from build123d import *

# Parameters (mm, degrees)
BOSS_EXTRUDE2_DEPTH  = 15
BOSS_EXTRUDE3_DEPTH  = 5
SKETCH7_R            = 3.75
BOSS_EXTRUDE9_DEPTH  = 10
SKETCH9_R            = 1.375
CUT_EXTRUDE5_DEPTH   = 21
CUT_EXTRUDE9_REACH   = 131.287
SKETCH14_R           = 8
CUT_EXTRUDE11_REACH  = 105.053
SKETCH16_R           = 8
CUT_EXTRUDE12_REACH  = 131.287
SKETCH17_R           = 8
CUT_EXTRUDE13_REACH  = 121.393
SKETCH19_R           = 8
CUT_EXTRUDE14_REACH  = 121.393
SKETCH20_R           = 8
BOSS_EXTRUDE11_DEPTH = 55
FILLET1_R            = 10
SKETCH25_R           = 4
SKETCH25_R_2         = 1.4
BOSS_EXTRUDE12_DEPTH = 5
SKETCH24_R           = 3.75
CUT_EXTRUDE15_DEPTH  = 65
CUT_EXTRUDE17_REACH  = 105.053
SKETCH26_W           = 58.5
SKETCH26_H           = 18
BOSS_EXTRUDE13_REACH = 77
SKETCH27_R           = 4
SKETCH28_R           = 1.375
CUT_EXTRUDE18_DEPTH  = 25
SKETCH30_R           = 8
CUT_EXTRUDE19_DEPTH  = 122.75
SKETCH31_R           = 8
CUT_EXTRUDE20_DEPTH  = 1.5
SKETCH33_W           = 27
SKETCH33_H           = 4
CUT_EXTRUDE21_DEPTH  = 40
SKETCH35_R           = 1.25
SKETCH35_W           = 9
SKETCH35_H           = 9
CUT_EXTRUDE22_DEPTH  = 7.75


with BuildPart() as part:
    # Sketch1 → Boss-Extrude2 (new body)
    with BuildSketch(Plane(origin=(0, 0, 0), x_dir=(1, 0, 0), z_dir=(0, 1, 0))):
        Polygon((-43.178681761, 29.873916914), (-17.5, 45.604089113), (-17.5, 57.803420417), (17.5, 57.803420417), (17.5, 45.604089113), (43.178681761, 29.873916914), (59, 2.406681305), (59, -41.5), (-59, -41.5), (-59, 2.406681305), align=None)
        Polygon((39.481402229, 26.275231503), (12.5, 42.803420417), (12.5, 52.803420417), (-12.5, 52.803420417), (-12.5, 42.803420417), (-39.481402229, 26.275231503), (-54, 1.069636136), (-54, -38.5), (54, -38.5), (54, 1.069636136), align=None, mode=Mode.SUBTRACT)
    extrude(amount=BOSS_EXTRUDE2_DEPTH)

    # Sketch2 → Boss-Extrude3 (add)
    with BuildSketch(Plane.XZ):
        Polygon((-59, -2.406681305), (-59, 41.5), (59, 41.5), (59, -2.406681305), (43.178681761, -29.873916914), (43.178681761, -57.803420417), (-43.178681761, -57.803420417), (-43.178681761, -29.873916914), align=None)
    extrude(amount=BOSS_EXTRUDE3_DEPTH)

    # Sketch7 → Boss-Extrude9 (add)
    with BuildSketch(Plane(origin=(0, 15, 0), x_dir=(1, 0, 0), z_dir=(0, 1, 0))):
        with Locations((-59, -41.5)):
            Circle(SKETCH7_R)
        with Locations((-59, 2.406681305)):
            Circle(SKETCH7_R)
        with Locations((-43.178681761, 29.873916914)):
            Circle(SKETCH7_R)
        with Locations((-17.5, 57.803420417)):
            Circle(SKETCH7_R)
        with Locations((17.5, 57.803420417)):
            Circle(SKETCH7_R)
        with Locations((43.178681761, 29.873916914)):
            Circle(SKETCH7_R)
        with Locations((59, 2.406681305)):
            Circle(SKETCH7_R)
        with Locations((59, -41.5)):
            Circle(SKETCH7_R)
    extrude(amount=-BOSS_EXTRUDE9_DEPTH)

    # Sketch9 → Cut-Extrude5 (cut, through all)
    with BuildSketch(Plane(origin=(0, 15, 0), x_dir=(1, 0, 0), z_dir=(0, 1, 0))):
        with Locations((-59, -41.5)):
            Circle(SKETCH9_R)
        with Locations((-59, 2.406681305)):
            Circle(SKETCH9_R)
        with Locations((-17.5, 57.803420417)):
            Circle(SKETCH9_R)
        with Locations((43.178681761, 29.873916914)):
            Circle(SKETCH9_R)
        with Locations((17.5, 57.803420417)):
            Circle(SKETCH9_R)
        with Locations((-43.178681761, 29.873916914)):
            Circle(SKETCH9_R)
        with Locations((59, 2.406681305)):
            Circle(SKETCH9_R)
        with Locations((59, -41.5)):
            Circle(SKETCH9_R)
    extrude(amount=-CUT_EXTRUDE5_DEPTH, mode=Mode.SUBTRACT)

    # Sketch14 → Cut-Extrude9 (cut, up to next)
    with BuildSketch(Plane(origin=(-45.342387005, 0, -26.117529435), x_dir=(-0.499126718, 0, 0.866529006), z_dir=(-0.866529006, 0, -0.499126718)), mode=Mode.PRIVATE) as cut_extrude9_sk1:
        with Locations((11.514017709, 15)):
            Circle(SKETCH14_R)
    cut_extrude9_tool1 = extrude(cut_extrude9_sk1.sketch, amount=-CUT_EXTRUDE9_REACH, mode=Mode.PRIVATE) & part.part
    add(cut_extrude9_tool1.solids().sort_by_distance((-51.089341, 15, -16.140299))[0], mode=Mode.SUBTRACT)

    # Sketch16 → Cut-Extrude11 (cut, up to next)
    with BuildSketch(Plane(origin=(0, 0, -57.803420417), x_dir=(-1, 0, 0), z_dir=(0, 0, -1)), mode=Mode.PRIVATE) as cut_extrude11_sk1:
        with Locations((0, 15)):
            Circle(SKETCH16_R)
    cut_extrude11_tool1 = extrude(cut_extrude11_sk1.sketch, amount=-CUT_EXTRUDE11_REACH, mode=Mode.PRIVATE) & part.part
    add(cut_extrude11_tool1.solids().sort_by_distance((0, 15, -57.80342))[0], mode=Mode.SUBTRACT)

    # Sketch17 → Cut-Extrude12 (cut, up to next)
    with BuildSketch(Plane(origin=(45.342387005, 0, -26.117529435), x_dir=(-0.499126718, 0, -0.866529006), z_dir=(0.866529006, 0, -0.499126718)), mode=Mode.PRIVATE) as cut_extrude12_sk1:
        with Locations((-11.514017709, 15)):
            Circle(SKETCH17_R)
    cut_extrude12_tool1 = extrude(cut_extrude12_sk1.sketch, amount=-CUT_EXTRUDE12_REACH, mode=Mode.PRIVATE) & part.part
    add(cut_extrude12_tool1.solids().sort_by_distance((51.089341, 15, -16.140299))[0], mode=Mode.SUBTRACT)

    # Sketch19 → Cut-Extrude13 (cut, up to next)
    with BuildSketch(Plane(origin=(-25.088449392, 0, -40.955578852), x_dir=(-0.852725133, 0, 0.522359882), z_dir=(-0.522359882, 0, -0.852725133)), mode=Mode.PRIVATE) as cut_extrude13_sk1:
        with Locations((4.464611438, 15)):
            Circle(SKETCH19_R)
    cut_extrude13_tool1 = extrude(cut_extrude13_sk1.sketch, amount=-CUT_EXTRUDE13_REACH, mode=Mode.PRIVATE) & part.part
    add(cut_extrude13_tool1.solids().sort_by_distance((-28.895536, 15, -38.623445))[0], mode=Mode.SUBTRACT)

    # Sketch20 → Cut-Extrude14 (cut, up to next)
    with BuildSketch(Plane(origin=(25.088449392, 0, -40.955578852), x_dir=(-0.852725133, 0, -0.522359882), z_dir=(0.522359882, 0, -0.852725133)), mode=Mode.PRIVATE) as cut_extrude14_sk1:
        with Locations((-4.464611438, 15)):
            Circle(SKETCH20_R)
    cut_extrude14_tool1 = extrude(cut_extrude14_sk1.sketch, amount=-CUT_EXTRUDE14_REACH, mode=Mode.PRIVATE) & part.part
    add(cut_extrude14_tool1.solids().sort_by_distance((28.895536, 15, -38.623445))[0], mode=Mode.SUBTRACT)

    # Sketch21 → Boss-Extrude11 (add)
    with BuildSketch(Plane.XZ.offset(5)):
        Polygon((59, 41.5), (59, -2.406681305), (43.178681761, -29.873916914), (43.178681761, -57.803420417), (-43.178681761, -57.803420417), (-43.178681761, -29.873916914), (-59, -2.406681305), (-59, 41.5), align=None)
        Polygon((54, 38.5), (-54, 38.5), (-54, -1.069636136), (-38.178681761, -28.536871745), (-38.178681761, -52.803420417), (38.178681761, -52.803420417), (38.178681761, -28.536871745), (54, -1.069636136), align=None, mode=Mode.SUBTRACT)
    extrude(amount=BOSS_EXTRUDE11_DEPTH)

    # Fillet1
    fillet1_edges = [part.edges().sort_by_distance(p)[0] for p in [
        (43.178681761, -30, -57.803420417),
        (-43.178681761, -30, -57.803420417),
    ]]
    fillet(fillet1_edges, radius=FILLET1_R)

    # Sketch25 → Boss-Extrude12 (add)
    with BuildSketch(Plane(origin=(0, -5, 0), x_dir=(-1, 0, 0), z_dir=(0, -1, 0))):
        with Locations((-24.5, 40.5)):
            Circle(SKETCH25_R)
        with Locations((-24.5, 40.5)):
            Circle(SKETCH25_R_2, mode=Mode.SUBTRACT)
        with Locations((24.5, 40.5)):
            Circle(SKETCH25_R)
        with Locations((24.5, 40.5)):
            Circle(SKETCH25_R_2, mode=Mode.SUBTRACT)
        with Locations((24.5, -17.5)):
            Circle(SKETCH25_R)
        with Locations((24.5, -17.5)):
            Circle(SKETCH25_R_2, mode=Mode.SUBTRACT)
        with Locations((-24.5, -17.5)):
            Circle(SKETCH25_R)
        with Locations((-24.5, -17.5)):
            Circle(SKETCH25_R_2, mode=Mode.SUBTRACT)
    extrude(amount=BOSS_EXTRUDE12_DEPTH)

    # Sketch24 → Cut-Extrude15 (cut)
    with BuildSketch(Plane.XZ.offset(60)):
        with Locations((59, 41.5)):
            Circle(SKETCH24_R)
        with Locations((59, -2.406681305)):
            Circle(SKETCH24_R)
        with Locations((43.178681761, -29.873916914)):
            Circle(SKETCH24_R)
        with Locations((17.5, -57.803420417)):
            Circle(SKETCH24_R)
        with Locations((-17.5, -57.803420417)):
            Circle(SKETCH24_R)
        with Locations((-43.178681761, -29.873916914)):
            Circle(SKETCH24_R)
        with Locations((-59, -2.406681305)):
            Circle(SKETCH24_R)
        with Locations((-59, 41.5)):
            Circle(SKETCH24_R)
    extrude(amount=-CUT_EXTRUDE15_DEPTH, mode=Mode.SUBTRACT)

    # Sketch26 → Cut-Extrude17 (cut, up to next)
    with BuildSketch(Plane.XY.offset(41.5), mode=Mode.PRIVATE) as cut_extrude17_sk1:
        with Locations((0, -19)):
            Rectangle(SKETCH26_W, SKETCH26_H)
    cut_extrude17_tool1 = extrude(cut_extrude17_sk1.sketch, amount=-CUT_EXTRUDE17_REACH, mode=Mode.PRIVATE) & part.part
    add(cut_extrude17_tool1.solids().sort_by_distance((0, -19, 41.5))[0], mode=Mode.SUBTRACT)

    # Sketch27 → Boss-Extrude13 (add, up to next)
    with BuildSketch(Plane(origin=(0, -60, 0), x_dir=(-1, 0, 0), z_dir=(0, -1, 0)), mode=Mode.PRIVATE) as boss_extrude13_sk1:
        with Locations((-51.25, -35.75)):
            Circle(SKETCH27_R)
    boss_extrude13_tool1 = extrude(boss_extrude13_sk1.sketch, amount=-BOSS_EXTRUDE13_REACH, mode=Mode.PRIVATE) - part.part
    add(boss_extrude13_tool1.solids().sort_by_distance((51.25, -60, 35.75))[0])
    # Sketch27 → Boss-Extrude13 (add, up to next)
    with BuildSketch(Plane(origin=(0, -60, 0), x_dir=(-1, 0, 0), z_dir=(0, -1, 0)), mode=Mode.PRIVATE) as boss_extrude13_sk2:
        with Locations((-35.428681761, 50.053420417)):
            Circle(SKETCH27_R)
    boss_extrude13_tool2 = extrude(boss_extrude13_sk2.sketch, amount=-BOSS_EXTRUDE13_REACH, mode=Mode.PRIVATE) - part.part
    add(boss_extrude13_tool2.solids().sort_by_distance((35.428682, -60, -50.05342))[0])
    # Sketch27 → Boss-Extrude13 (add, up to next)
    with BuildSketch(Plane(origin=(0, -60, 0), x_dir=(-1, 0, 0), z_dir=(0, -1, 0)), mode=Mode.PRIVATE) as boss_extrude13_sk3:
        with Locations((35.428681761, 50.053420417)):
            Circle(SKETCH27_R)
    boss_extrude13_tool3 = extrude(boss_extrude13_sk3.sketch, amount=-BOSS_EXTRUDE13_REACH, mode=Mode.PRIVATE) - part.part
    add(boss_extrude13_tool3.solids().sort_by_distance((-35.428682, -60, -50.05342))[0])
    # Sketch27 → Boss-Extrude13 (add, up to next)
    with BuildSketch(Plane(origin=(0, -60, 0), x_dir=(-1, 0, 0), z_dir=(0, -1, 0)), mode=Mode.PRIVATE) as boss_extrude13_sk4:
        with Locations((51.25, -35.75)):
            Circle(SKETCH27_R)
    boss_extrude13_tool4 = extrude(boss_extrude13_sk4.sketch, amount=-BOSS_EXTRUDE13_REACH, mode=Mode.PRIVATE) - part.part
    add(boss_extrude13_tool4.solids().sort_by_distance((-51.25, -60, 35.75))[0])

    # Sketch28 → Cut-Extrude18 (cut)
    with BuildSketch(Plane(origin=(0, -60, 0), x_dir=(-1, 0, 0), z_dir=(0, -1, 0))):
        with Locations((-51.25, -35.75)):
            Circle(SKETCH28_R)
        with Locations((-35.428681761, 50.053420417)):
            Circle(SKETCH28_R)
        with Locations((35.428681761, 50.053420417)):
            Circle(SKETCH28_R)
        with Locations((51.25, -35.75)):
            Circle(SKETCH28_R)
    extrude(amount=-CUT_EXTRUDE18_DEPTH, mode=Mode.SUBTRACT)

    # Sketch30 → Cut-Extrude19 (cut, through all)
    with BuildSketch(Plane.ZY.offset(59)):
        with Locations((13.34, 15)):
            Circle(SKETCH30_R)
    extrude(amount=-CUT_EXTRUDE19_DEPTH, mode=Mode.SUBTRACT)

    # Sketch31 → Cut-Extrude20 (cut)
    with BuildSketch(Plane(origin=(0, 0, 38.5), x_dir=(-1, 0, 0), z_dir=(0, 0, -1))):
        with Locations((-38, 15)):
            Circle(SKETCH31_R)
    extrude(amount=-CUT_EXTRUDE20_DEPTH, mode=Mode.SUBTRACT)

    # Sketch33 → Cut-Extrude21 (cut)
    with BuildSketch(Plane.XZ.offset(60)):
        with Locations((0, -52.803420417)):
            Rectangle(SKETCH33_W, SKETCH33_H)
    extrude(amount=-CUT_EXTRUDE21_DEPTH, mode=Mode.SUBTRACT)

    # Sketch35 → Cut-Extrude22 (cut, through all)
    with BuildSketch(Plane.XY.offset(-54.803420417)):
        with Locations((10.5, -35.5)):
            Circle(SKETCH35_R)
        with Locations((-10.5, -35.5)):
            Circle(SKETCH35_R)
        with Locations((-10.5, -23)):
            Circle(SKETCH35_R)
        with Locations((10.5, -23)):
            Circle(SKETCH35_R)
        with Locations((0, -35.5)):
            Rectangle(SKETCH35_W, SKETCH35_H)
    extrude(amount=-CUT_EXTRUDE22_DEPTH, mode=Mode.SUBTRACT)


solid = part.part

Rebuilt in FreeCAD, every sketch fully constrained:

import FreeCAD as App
import Part
import Sketcher

V = App.Vector


def edges_at(feature, points):
    """Names of the edges that pass closest to the given points."""
    edges = feature.Shape.Edges
    near = lambda p: min(range(len(edges)), key=lambda i: edges[i].distToShape(Part.Vertex(*p))[0])
    return sorted({f"Edge{near(p) + 1}" for p in points})


def add_polygon(sketch, points):
    """Adds a closed chain of lines whose ends are joined by coincident constraints."""
    first, n = sketch.GeometryCount, len(points)
    for a, b in zip(points, points[1:] + points[:1]):
        sketch.addGeometry(Part.LineSegment(App.Vector(*a, 0), App.Vector(*b, 0)), False)
    for i in range(n):
        sketch.addConstraint(Sketcher.Constraint("Coincident", first + i, 2, first + (i + 1) % n, 1))

doc = App.newDocument("Part")
body = doc.addObject("PartDesign::Body", "Body")

# Sketch on XZ plane
sketch1 = doc.addObject("Sketcher::SketchObject", "Sketch")
body.addObject(sketch1)
sketch1.AttachmentSupport = (doc.XZ_Plane, [""])
sketch1.MapMode = "FlatFace"
add_polygon(sketch1, [(-17.5, -45.604089), (-43.178682, -29.873917), (-59, -2.406681), (-59, 41.5), (59, 41.5), (59, -2.406681), (43.178682, -29.873917), (17.5, -45.604089), (17.5, -57.80342), (-17.5, -57.80342)])  # lines 0-9
add_polygon(sketch1, [(39.481402, -26.275232), (54, -1.069636), (54, 38.5), (-54, 38.5), (-54, -1.069636), (-39.481402, -26.275232), (-12.5, -42.80342), (-12.5, -52.80342), (12.5, -52.80342), (12.5, -42.80342)])  # lines 10-19
sketch1.addConstraint([
    Sketcher.Constraint("Vertical", 2),
    Sketcher.Constraint("Horizontal", 3),
    Sketcher.Constraint("Vertical", 4),
    Sketcher.Constraint("Vertical", 7),
    Sketcher.Constraint("Horizontal", 8),
    Sketcher.Constraint("Vertical", 9),
    Sketcher.Constraint("Vertical", 11),
    Sketcher.Constraint("Horizontal", 12),
    Sketcher.Constraint("Vertical", 13),
    Sketcher.Constraint("Vertical", 16),
    Sketcher.Constraint("Horizontal", 17),
    Sketcher.Constraint("Vertical", 18),
    Sketcher.Constraint("Symmetric", 1, 2, 4, 2, -2),
    Sketcher.Constraint("Symmetric", 0, 2, 5, 2, -2),
    Sketcher.Constraint("Symmetric", 6, 2, 9, 2, -2),
    Sketcher.Constraint("Symmetric", 10, 2, 13, 2, -2),
    Sketcher.Constraint("Symmetric", 15, 2, 18, 2, -2),
    Sketcher.Constraint("Symmetric", 14, 2, 19, 2, -2),
    Sketcher.Constraint("Parallel", 5, 10),
    Sketcher.Constraint("Parallel", 0, 15),
    Sketcher.Constraint("DistanceX", 3, 1, 3, 2, 118.0),
    Sketcher.Constraint("DistanceX", 8, 2, 8, 1, 35.0),
    Sketcher.Constraint("DistanceX", 12, 2, 12, 1, 108.0),
    Sketcher.Constraint("DistanceX", 17, 1, 17, 2, 25.0),
    Sketcher.Constraint("DistanceY", 16, 2, 16, 1, 10.0),
    Sketcher.Constraint("DistanceY", 11, 2, 3, 2, 3.0),
    Sketcher.Constraint("DistanceY", 8, 2, 15, 2, 15.0),
    Sketcher.Constraint("DistanceY", -1, 1, 2, 2, 41.5),
    Sketcher.Constraint("Distance", 1, 31.697999),
    Sketcher.Constraint("Distance", 10, 29.088),
    Sketcher.Constraint("DistanceY", 2, 1, 2, 2, 43.906681),
    Sketcher.Constraint("DistanceY", 7, 2, 7, 1, 12.199331),
    Sketcher.Constraint("Distance", 0, 30.113668),
    Sketcher.Constraint("DistanceY", 11, 1, 11, 2, 39.569636),
])
pad1 = doc.addObject("PartDesign::Pad", "Pad")
body.addObject(pad1)
pad1.Profile = sketch1
pad1.Length = 15
pad1.Reversed = True

# Sketch on XZ plane
sketch2 = doc.addObject("Sketcher::SketchObject", "Sketch001")
body.addObject(sketch2)
sketch2.AttachmentSupport = (doc.XZ_Plane, [""])
sketch2.MapMode = "FlatFace"
add_polygon(sketch2, [(-59, 41.5), (-59, -2.406681), (-43.178682, -29.873917), (-43.178682, -57.80342), (43.178682, -57.80342), (43.178682, -29.873917), (59, -2.406681), (59, 41.5)])  # lines 0-7
sketch2.addConstraint([
    Sketcher.Constraint("Vertical", 0),
    Sketcher.Constraint("Vertical", 2),
    Sketcher.Constraint("Horizontal", 3),
    Sketcher.Constraint("Vertical", 4),
    Sketcher.Constraint("Vertical", 6),
    Sketcher.Constraint("Horizontal", 7),
    Sketcher.Constraint("Symmetric", 1, 2, 4, 2, -2),
    Sketcher.Constraint("Symmetric", 0, 2, 5, 2, -2),
    Sketcher.Constraint("DistanceX", 7, 2, 7, 1, 118.0),
    Sketcher.Constraint("DistanceY", -1, 1, 6, 2, 41.5),
    Sketcher.Constraint("Distance", 1, 31.697999),
    Sketcher.Constraint("DistanceY", 0, 2, 0, 1, 43.906681),
    Sketcher.Constraint("DistanceX", 3, 1, 3, 2, 86.357364),
    Sketcher.Constraint("DistanceY", 2, 2, 2, 1, 27.929504),
])
pad2 = doc.addObject("PartDesign::Pad", "Pad001")
body.addObject(pad2)
pad2.Profile = sketch2
pad2.Length = 5

# Sketch on XZ plane
sketch3 = doc.addObject("Sketcher::SketchObject", "Sketch002")
body.addObject(sketch3)
sketch3.AttachmentSupport = (doc.XZ_Plane, [""])
sketch3.MapMode = "FlatFace"
sketch3.AttachmentOffset = App.Placement(V(0, 0, -15), App.Rotation())
sketch3.addGeometry([
    Part.Circle(V(-59, 41.5, 0), V(0, 0, 1), 3.75),  # 0
    Part.Circle(V(-59, -2.406681, 0), V(0, 0, 1), 3.75),  # 1
    Part.Circle(V(-43.178682, -29.873917, 0), V(0, 0, 1), 3.75),  # 2
    Part.Circle(V(-17.5, -57.80342, 0), V(0, 0, 1), 3.75),  # 3
    Part.Circle(V(17.5, -57.80342, 0), V(0, 0, 1), 3.75),  # 4
    Part.Circle(V(43.178682, -29.873917, 0), V(0, 0, 1), 3.75),  # 5
    Part.Circle(V(59, -2.406681, 0), V(0, 0, 1), 3.75),  # 6
    Part.Circle(V(59, 41.5, 0), V(0, 0, 1), 3.75),  # 7
], False)
sketch3.addConstraint([
    Sketcher.Constraint("Equal", 0, 1),
    Sketcher.Constraint("Equal", 1, 2),
    Sketcher.Constraint("Equal", 2, 3),
    Sketcher.Constraint("Equal", 3, 4),
    Sketcher.Constraint("Equal", 4, 5),
    Sketcher.Constraint("Equal", 5, 6),
    Sketcher.Constraint("Equal", 6, 7),
    Sketcher.Constraint("Symmetric", 3, 3, 4, 3, -2),
    Sketcher.Constraint("Symmetric", 2, 3, 5, 3, -2),
    Sketcher.Constraint("Symmetric", 1, 3, 6, 3, -2),
    Sketcher.Constraint("Symmetric", 0, 3, 7, 3, -2),
    Sketcher.Constraint("Vertical", 0, 3, 1, 3),
    Sketcher.Constraint("Diameter", 0, 7.5),
    Sketcher.Constraint("DistanceX", 0, 3, -1, 1, 59.0),
    Sketcher.Constraint("DistanceX", 3, 3, 4, 3, 35.0),
    Sketcher.Constraint("DistanceY", -1, 1, 0, 3, 41.5),
    Sketcher.Constraint("DistanceY", 1, 3, -1, 1, 2.406681),
    Sketcher.Constraint("DistanceX", 2, 3, -1, 1, 43.178682),
    Sketcher.Constraint("DistanceY", 3, 3, -1, 1, 57.80342),
    Sketcher.Constraint("DistanceY", 2, 3, -1, 1, 29.873917),
])
pad3 = doc.addObject("PartDesign::Pad", "Pad002")
body.addObject(pad3)
pad3.Profile = sketch3
pad3.Length = 10

# Sketch on XZ plane
sketch4 = doc.addObject("Sketcher::SketchObject", "Sketch003")
body.addObject(sketch4)
sketch4.AttachmentSupport = (doc.XZ_Plane, [""])
sketch4.MapMode = "FlatFace"
sketch4.AttachmentOffset = App.Placement(V(0, 0, -15), App.Rotation())
sketch4.addGeometry([
    Part.Circle(V(-59, 41.5, 0), V(0, 0, 1), 1.375),  # 0
    Part.Circle(V(-59, -2.406681, 0), V(0, 0, 1), 1.375),  # 1
    Part.Circle(V(-17.5, -57.80342, 0), V(0, 0, 1), 1.375),  # 2
    Part.Circle(V(43.178682, -29.873917, 0), V(0, 0, 1), 1.375),  # 3
    Part.Circle(V(17.5, -57.80342, 0), V(0, 0, 1), 1.375),  # 4
    Part.Circle(V(-43.178682, -29.873917, 0), V(0, 0, 1), 1.375),  # 5
    Part.Circle(V(59, -2.406681, 0), V(0, 0, 1), 1.375),  # 6
    Part.Circle(V(59, 41.5, 0), V(0, 0, 1), 1.375),  # 7
], False)
sketch4.addConstraint([
    Sketcher.Constraint("Equal", 0, 1),
    Sketcher.Constraint("Equal", 1, 2),
    Sketcher.Constraint("Equal", 2, 3),
    Sketcher.Constraint("Equal", 3, 4),
    Sketcher.Constraint("Equal", 4, 5),
    Sketcher.Constraint("Equal", 5, 6),
    Sketcher.Constraint("Equal", 6, 7),
    Sketcher.Constraint("Symmetric", 2, 3, 4, 3, -2),
    Sketcher.Constraint("Symmetric", 3, 3, 5, 3, -2),
    Sketcher.Constraint("Symmetric", 1, 3, 6, 3, -2),
    Sketcher.Constraint("Symmetric", 0, 3, 7, 3, -2),
    Sketcher.Constraint("Vertical", 0, 3, 1, 3),
    Sketcher.Constraint("Diameter", 0, 2.75),
    Sketcher.Constraint("DistanceX", 0, 3, -1, 1, 59.0),
    Sketcher.Constraint("DistanceX", 2, 3, 4, 3, 35.0),
    Sketcher.Constraint("DistanceY", -1, 1, 0, 3, 41.5),
    Sketcher.Constraint("DistanceY", 1, 3, -1, 1, 2.406681),
    Sketcher.Constraint("DistanceY", 2, 3, -1, 1, 57.80342),
    Sketcher.Constraint("DistanceX", -1, 1, 3, 3, 43.178682),
    Sketcher.Constraint("DistanceY", 3, 3, -1, 1, 29.873917),
])
pocket1 = doc.addObject("PartDesign::Pocket", "Pocket")
body.addObject(pocket1)
pocket1.Profile = sketch4
pocket1.Type = "ThroughAll"
pocket1.Reversed = True

# Sketch on an angled plane
sketch5 = doc.addObject("Sketcher::SketchObject", "Sketch004")
body.addObject(sketch5)
sketch5.Placement = App.Placement(V(-45.342387, 0, -26.117529), App.Rotation(V(-0.499126718, 0, 0.866529006), V(0, 0.999999999, 0), V(-0.866529006, 0, -0.499126718), "ZXY"))
sketch5.addGeometry(Part.Circle(V(11.514018, 15, 0), V(0, 0, 1), 8), False)
sketch5.addConstraint([
    Sketcher.Constraint("Diameter", 0, 16.0),
    Sketcher.Constraint("DistanceY", -1, 1, 0, 3, 15.0),
    Sketcher.Constraint("DistanceX", -1, 1, 0, 3, 11.514018),
])
pocket2 = doc.addObject("PartDesign::Pocket", "Pocket001")
body.addObject(pocket2)
pocket2.Profile = sketch5
pocket2.Type = "UpToFirst"

# Sketch on XY plane
sketch6 = doc.addObject("Sketcher::SketchObject", "Sketch005")
body.addObject(sketch6)
sketch6.AttachmentSupport = (doc.XY_Plane, [""])
sketch6.MapMode = "FlatFace"
sketch6.AttachmentOffset = App.Placement(V(0, 0, -57.80342), App.Rotation())
sketch6.addGeometry(Part.Circle(V(0, 15, 0), V(0, 0, 1), 8), False)
sketch6.addConstraint([
    Sketcher.Constraint("PointOnObject", 0, 3, -2),
    Sketcher.Constraint("Diameter", 0, 16.0),
    Sketcher.Constraint("DistanceY", -1, 1, 0, 3, 15.0),
])
pocket3 = doc.addObject("PartDesign::Pocket", "Pocket002")
body.addObject(pocket3)
pocket3.Profile = sketch6
pocket3.Type = "UpToFirst"
pocket3.Reversed = True

# Sketch on an angled plane
sketch7 = doc.addObject("Sketcher::SketchObject", "Sketch006")
body.addObject(sketch7)
sketch7.Placement = App.Placement(V(45.342387, 0, -26.117529), App.Rotation(V(-0.499126718, 0, -0.866529006), V(0, 0.999999999, 0), V(0.866529006, 0, -0.499126718), "ZXY"))
sketch7.addGeometry(Part.Circle(V(-11.514018, 15, 0), V(0, 0, 1), 8), False)
sketch7.addConstraint([
    Sketcher.Constraint("Diameter", 0, 16.0),
    Sketcher.Constraint("DistanceY", -1, 1, 0, 3, 15.0),
    Sketcher.Constraint("DistanceX", 0, 3, -1, 1, 11.514018),
])
pocket4 = doc.addObject("PartDesign::Pocket", "Pocket003")
body.addObject(pocket4)
pocket4.Profile = sketch7
pocket4.Type = "UpToFirst"

# Sketch on an angled plane
sketch8 = doc.addObject("Sketcher::SketchObject", "Sketch007")
body.addObject(sketch8)
sketch8.Placement = App.Placement(V(-25.088449, 0, -40.955579), App.Rotation(V(-0.852725134, 0, 0.522359882), V(0, 1, 0), V(-0.522359882, 0, -0.852725134), "ZXY"))
sketch8.addGeometry(Part.Circle(V(4.464611, 15, 0), V(0, 0, 1), 8), False)
sketch8.addConstraint([
    Sketcher.Constraint("Diameter", 0, 16.0),
    Sketcher.Constraint("DistanceY", -1, 1, 0, 3, 15.0),
    Sketcher.Constraint("DistanceX", -1, 1, 0, 3, 4.464611),
])
pocket5 = doc.addObject("PartDesign::Pocket", "Pocket004")
body.addObject(pocket5)
pocket5.Profile = sketch8
pocket5.Type = "UpToFirst"

# Sketch on an angled plane
sketch9 = doc.addObject("Sketcher::SketchObject", "Sketch008")
body.addObject(sketch9)
sketch9.Placement = App.Placement(V(25.088449, 0, -40.955579), App.Rotation(V(-0.852725134, 0, -0.522359882), V(0, 1, 0), V(0.522359882, 0, -0.852725134), "ZXY"))
sketch9.addGeometry(Part.Circle(V(-4.464611, 15, 0), V(0, 0, 1), 8), False)
sketch9.addConstraint([
    Sketcher.Constraint("Diameter", 0, 16.0),
    Sketcher.Constraint("DistanceY", -1, 1, 0, 3, 15.0),
    Sketcher.Constraint("DistanceX", 0, 3, -1, 1, 4.464611),
])
pocket6 = doc.addObject("PartDesign::Pocket", "Pocket005")
body.addObject(pocket6)
pocket6.Profile = sketch9
pocket6.Type = "UpToFirst"

# Sketch on XZ plane
sketch10 = doc.addObject("Sketcher::SketchObject", "Sketch009")
body.addObject(sketch10)
sketch10.AttachmentSupport = (doc.XZ_Plane, [""])
sketch10.MapMode = "FlatFace"
sketch10.AttachmentOffset = App.Placement(V(0, 0, 5), App.Rotation())
add_polygon(sketch10, [(59, -2.406681), (59, 41.5), (-59, 41.5), (-59, -2.406681), (-43.178682, -29.873917), (-43.178682, -57.80342), (43.178682, -57.80342), (43.178682, -29.873917)])  # lines 0-7
add_polygon(sketch10, [(54, 38.5), (54, -1.069636), (38.178682, -28.536872), (38.178682, -52.80342), (-38.178682, -52.80342), (-38.178682, -28.536872), (-54, -1.069636), (-54, 38.5)])  # lines 8-15
sketch10.addConstraint([
    Sketcher.Constraint("Vertical", 0),
    Sketcher.Constraint("Horizontal", 1),
    Sketcher.Constraint("Vertical", 2),
    Sketcher.Constraint("Vertical", 4),
    Sketcher.Constraint("Horizontal", 5),
    Sketcher.Constraint("Vertical", 6),
    Sketcher.Constraint("Vertical", 8),
    Sketcher.Constraint("Vertical", 10),
    Sketcher.Constraint("Horizontal", 11),
    Sketcher.Constraint("Vertical", 12),
    Sketcher.Constraint("Vertical", 14),
    Sketcher.Constraint("Horizontal", 15),
    Sketcher.Constraint("Symmetric", 3, 2, 6, 2, -2),
    Sketcher.Constraint("Symmetric", 2, 2, 7, 2, -2),
    Sketcher.Constraint("Symmetric", 9, 2, 12, 2, -2),
    Sketcher.Constraint("Symmetric", 8, 2, 13, 2, -2),
    Sketcher.Constraint("Parallel", 7, 9),
    Sketcher.Constraint("Equal", 7, 9),
    Sketcher.Constraint("DistanceX", 1, 2, 1, 1, 118.0),
    Sketcher.Constraint("DistanceX", 15, 1, 15, 2, 108.0),
    Sketcher.Constraint("DistanceY", 5, 2, 10, 2, 5.0),
    Sketcher.Constraint("DistanceY", 14, 2, 1, 2, 3.0),
    Sketcher.Constraint("DistanceY", -1, 1, 0, 2, 41.5),
    Sketcher.Constraint("Distance", 3, 31.697999),
    Sketcher.Constraint("DistanceY", 0, 1, 0, 2, 43.906681),
    Sketcher.Constraint("DistanceY", 10, 2, 10, 1, 24.266549),
    Sketcher.Constraint("DistanceX", 5, 1, 5, 2, 86.357364),
    Sketcher.Constraint("DistanceY", 4, 2, 4, 1, 27.929504),
])
pad4 = doc.addObject("PartDesign::Pad", "Pad003")
body.addObject(pad4)
pad4.Profile = sketch10
pad4.Length = 55
doc.recompute()

fillet = doc.addObject("PartDesign::Fillet", "Fillet")
body.addObject(fillet)
fillet.Base = (pad4, edges_at(pad4, [(43.179, -30, -57.803), (-43.179, -30, -57.803)]))
fillet.Radius = 10

# Sketch on XZ plane
sketch11 = doc.addObject("Sketcher::SketchObject", "Sketch010")
body.addObject(sketch11)
sketch11.AttachmentSupport = (doc.XZ_Plane, [""])
sketch11.MapMode = "FlatFace"
sketch11.AttachmentOffset = App.Placement(V(0, 0, 5), App.Rotation())
sketch11.addGeometry([
    Part.Circle(V(24.5, -40.5, 0), V(0, 0, 1), 4),  # 0
    Part.Circle(V(24.5, -40.5, 0), V(0, 0, 1), 1.4),  # 1
    Part.Circle(V(-24.5, -40.5, 0), V(0, 0, 1), 4),  # 2
    Part.Circle(V(-24.5, -40.5, 0), V(0, 0, 1), 1.4),  # 3
    Part.Circle(V(-24.5, 17.5, 0), V(0, 0, 1), 4),  # 4
    Part.Circle(V(-24.5, 17.5, 0), V(0, 0, 1), 1.4),  # 5
    Part.Circle(V(24.5, 17.5, 0), V(0, 0, 1), 4),  # 6
    Part.Circle(V(24.5, 17.5, 0), V(0, 0, 1), 1.4),  # 7
], False)
sketch11.addConstraint([
    Sketcher.Constraint("Coincident", 1, 3, 0, 3),
    Sketcher.Constraint("Coincident", 3, 3, 2, 3),
    Sketcher.Constraint("Coincident", 5, 3, 4, 3),
    Sketcher.Constraint("Coincident", 7, 3, 6, 3),
    Sketcher.Constraint("Equal", 0, 2),
    Sketcher.Constraint("Equal", 1, 3),
    Sketcher.Constraint("Equal", 2, 4),
    Sketcher.Constraint("Equal", 3, 5),
    Sketcher.Constraint("Equal", 4, 6),
    Sketcher.Constraint("Equal", 5, 7),
    Sketcher.Constraint("Symmetric", 0, 3, 2, 3, -2),
    Sketcher.Constraint("Symmetric", 4, 3, 6, 3, -2),
    Sketcher.Constraint("Vertical", 3, 3, 4, 3),
    Sketcher.Constraint("Diameter", 0, 8.0),
    Sketcher.Constraint("Diameter", 1, 2.8),
    Sketcher.Constraint("DistanceX", 2, 3, 0, 3, 49.0),
    Sketcher.Constraint("DistanceY", 2, 3, 4, 3, 58.0),
    Sketcher.Constraint("DistanceY", 0, 3, -1, 1, 40.5),
])
pad5 = doc.addObject("PartDesign::Pad", "Pad004")
body.addObject(pad5)
pad5.Profile = sketch11
pad5.Length = 5

# Sketch on XZ plane
sketch12 = doc.addObject("Sketcher::SketchObject", "Sketch011")
body.addObject(sketch12)
sketch12.AttachmentSupport = (doc.XZ_Plane, [""])
sketch12.MapMode = "FlatFace"
sketch12.AttachmentOffset = App.Placement(V(0, 0, 60), App.Rotation())
sketch12.addGeometry([
    Part.Circle(V(59, 41.5, 0), V(0, 0, 1), 3.75),  # 0
    Part.Circle(V(59, -2.406681, 0), V(0, 0, 1), 3.75),  # 1
    Part.Circle(V(43.178682, -29.873917, 0), V(0, 0, 1), 3.75),  # 2
    Part.Circle(V(17.5, -57.80342, 0), V(0, 0, 1), 3.75),  # 3
    Part.Circle(V(-17.5, -57.80342, 0), V(0, 0, 1), 3.75),  # 4
    Part.Circle(V(-43.178682, -29.873917, 0), V(0, 0, 1), 3.75),  # 5
    Part.Circle(V(-59, -2.406681, 0), V(0, 0, 1), 3.75),  # 6
    Part.Circle(V(-59, 41.5, 0), V(0, 0, 1), 3.75),  # 7
], False)
sketch12.addConstraint([
    Sketcher.Constraint("Equal", 0, 1),
    Sketcher.Constraint("Equal", 1, 2),
    Sketcher.Constraint("Equal", 2, 3),
    Sketcher.Constraint("Equal", 3, 4),
    Sketcher.Constraint("Equal", 4, 5),
    Sketcher.Constraint("Equal", 5, 6),
    Sketcher.Constraint("Equal", 6, 7),
    Sketcher.Constraint("Symmetric", 3, 3, 4, 3, -2),
    Sketcher.Constraint("Symmetric", 2, 3, 5, 3, -2),
    Sketcher.Constraint("Symmetric", 1, 3, 6, 3, -2),
    Sketcher.Constraint("Symmetric", 0, 3, 7, 3, -2),
    Sketcher.Constraint("Vertical", 0, 3, 1, 3),
    Sketcher.Constraint("Diameter", 0, 7.5),
    Sketcher.Constraint("DistanceX", -1, 1, 0, 3, 59.0),
    Sketcher.Constraint("DistanceX", 4, 3, 3, 3, 35.0),
    Sketcher.Constraint("DistanceY", -1, 1, 0, 3, 41.5),
    Sketcher.Constraint("DistanceY", 1, 3, -1, 1, 2.406681),
    Sketcher.Constraint("DistanceX", -1, 1, 2, 3, 43.178682),
    Sketcher.Constraint("DistanceY", 3, 3, -1, 1, 57.80342),
    Sketcher.Constraint("DistanceY", 2, 3, -1, 1, 29.873917),
])
pocket7 = doc.addObject("PartDesign::Pocket", "Pocket006")
body.addObject(pocket7)
pocket7.Profile = sketch12
pocket7.Length = 65

# Sketch on XY plane
sketch13 = doc.addObject("Sketcher::SketchObject", "Sketch012")
body.addObject(sketch13)
sketch13.AttachmentSupport = (doc.XY_Plane, [""])
sketch13.MapMode = "FlatFace"
sketch13.AttachmentOffset = App.Placement(V(0, 0, 41.5), App.Rotation())
add_polygon(sketch13, [(-29.25, -10), (-29.25, -28), (29.25, -28), (29.25, -10)])  # lines 0-3
sketch13.addConstraint([
    Sketcher.Constraint("Vertical", 0),
    Sketcher.Constraint("Horizontal", 1),
    Sketcher.Constraint("Vertical", 2),
    Sketcher.Constraint("Horizontal", 3),
    Sketcher.Constraint("DistanceY", 0, 2, 0, 1, 18.0),
    Sketcher.Constraint("DistanceX", 1, 1, 1, 2, 58.5),
    Sketcher.Constraint("DistanceY", 0, 2, -1, 1, 28.0),
    Sketcher.Constraint("DistanceX", 0, 2, -1, 1, 29.25),
])
pocket8 = doc.addObject("PartDesign::Pocket", "Pocket007")
body.addObject(pocket8)
pocket8.Profile = sketch13
pocket8.Type = "UpToFirst"

# Sketch on XZ plane
sketch14 = doc.addObject("Sketcher::SketchObject", "Sketch013")
body.addObject(sketch14)
sketch14.AttachmentSupport = (doc.XZ_Plane, [""])
sketch14.MapMode = "FlatFace"
sketch14.AttachmentOffset = App.Placement(V(0, 0, 60), App.Rotation())
sketch14.addGeometry(Part.Circle(V(51.25, 35.75, 0), V(0, 0, 1), 4), False)
sketch14.addConstraint([
    Sketcher.Constraint("Diameter", 0, 8.0),
    Sketcher.Constraint("DistanceX", -1, 1, 0, 3, 51.25),
    Sketcher.Constraint("DistanceY", -1, 1, 0, 3, 35.75),
])
pad6 = doc.addObject("PartDesign::Pad", "Pad005")
body.addObject(pad6)
pad6.Profile = sketch14
pad6.Type = "UpToFirst"
pad6.Reversed = True

# Sketch on XZ plane
sketch15 = doc.addObject("Sketcher::SketchObject", "Sketch014")
body.addObject(sketch15)
sketch15.AttachmentSupport = (doc.XZ_Plane, [""])
sketch15.MapMode = "FlatFace"
sketch15.AttachmentOffset = App.Placement(V(0, 0, 60), App.Rotation())
sketch15.addGeometry(Part.Circle(V(35.428682, -50.05342, 0), V(0, 0, 1), 4), False)
sketch15.addConstraint([
    Sketcher.Constraint("Diameter", 0, 8.0),
    Sketcher.Constraint("DistanceX", -1, 1, 0, 3, 35.428682),
    Sketcher.Constraint("DistanceY", 0, 3, -1, 1, 50.05342),
])
pad7 = doc.addObject("PartDesign::Pad", "Pad006")
body.addObject(pad7)
pad7.Profile = sketch15
pad7.Type = "UpToFirst"
pad7.Reversed = True

# Sketch on XZ plane
sketch16 = doc.addObject("Sketcher::SketchObject", "Sketch015")
body.addObject(sketch16)
sketch16.AttachmentSupport = (doc.XZ_Plane, [""])
sketch16.MapMode = "FlatFace"
sketch16.AttachmentOffset = App.Placement(V(0, 0, 60), App.Rotation())
sketch16.addGeometry(Part.Circle(V(-35.428682, -50.05342, 0), V(0, 0, 1), 4), False)
sketch16.addConstraint([
    Sketcher.Constraint("Diameter", 0, 8.0),
    Sketcher.Constraint("DistanceX", 0, 3, -1, 1, 35.428682),
    Sketcher.Constraint("DistanceY", 0, 3, -1, 1, 50.05342),
])
pad8 = doc.addObject("PartDesign::Pad", "Pad007")
body.addObject(pad8)
pad8.Profile = sketch16
pad8.Type = "UpToFirst"
pad8.Reversed = True

# Sketch on XZ plane
sketch17 = doc.addObject("Sketcher::SketchObject", "Sketch016")
body.addObject(sketch17)
sketch17.AttachmentSupport = (doc.XZ_Plane, [""])
sketch17.MapMode = "FlatFace"
sketch17.AttachmentOffset = App.Placement(V(0, 0, 60), App.Rotation())
sketch17.addGeometry(Part.Circle(V(-51.25, 35.75, 0), V(0, 0, 1), 4), False)
sketch17.addConstraint([
    Sketcher.Constraint("Diameter", 0, 8.0),
    Sketcher.Constraint("DistanceX", 0, 3, -1, 1, 51.25),
    Sketcher.Constraint("DistanceY", -1, 1, 0, 3, 35.75),
])
pad9 = doc.addObject("PartDesign::Pad", "Pad008")
body.addObject(pad9)
pad9.Profile = sketch17
pad9.Type = "UpToFirst"
pad9.Reversed = True

# Sketch on XZ plane
sketch18 = doc.addObject("Sketcher::SketchObject", "Sketch017")
body.addObject(sketch18)
sketch18.AttachmentSupport = (doc.XZ_Plane, [""])
sketch18.MapMode = "FlatFace"
sketch18.AttachmentOffset = App.Placement(V(0, 0, 60), App.Rotation())
sketch18.addGeometry([
    Part.Circle(V(51.25, 35.75, 0), V(0, 0, 1), 1.375),
    Part.Circle(V(35.428682, -50.05342, 0), V(0, 0, 1), 1.375),
    Part.Circle(V(-35.428682, -50.05342, 0), V(0, 0, 1), 1.375),
    Part.Circle(V(-51.25, 35.75, 0), V(0, 0, 1), 1.375),
], False)
sketch18.addConstraint([
    Sketcher.Constraint("Equal", 0, 1),
    Sketcher.Constraint("Equal", 1, 2),
    Sketcher.Constraint("Equal", 2, 3),
    Sketcher.Constraint("Symmetric", 1, 3, 2, 3, -2),
    Sketcher.Constraint("Symmetric", 0, 3, 3, 3, -2),
    Sketcher.Constraint("Diameter", 0, 2.75),
    Sketcher.Constraint("DistanceX", 3, 3, 0, 3, 102.5),
    Sketcher.Constraint("DistanceY", -1, 1, 0, 3, 35.75),
    Sketcher.Constraint("DistanceX", -1, 1, 1, 3, 35.428682),
    Sketcher.Constraint("DistanceY", 1, 3, -1, 1, 50.05342),
])
pocket9 = doc.addObject("PartDesign::Pocket", "Pocket008")
body.addObject(pocket9)
pocket9.Profile = sketch18
pocket9.Length = 25

# Sketch on YZ plane
sketch19 = doc.addObject("Sketcher::SketchObject", "Sketch018")
body.addObject(sketch19)
sketch19.AttachmentSupport = (doc.YZ_Plane, [""])
sketch19.MapMode = "FlatFace"
sketch19.AttachmentOffset = App.Placement(V(0, 0, -59), App.Rotation())
sketch19.addGeometry(Part.Circle(V(15, 13.34, 0), V(0, 0, 1), 8), False)
sketch19.addConstraint([
    Sketcher.Constraint("Diameter", 0, 16.0),
    Sketcher.Constraint("DistanceX", -1, 1, 0, 3, 15.0),
    Sketcher.Constraint("DistanceY", -1, 1, 0, 3, 13.34),
])
pocket10 = doc.addObject("PartDesign::Pocket", "Pocket009")
body.addObject(pocket10)
pocket10.Profile = sketch19
pocket10.Type = "ThroughAll"
pocket10.Reversed = True

# Sketch on XY plane
sketch20 = doc.addObject("Sketcher::SketchObject", "Sketch019")
body.addObject(sketch20)
sketch20.AttachmentSupport = (doc.XY_Plane, [""])
sketch20.MapMode = "FlatFace"
sketch20.AttachmentOffset = App.Placement(V(0, 0, 38.5), App.Rotation())
sketch20.addGeometry(Part.Circle(V(38, 15, 0), V(0, 0, 1), 8), False)
sketch20.addConstraint([
    Sketcher.Constraint("Diameter", 0, 16.0),
    Sketcher.Constraint("DistanceX", -1, 1, 0, 3, 38.0),
    Sketcher.Constraint("DistanceY", -1, 1, 0, 3, 15.0),
])
pocket11 = doc.addObject("PartDesign::Pocket", "Pocket010")
body.addObject(pocket11)
pocket11.Profile = sketch20
pocket11.Length = 1.5
pocket11.Reversed = True

# Sketch on XZ plane
sketch21 = doc.addObject("Sketcher::SketchObject", "Sketch020")
body.addObject(sketch21)
sketch21.AttachmentSupport = (doc.XZ_Plane, [""])
sketch21.MapMode = "FlatFace"
sketch21.AttachmentOffset = App.Placement(V(0, 0, 60), App.Rotation())
add_polygon(sketch21, [(-13.5, -50.80342), (-13.5, -54.80342), (13.5, -54.80342), (13.5, -50.80342)])  # lines 0-3
sketch21.addConstraint([
    Sketcher.Constraint("Vertical", 0),
    Sketcher.Constraint("Horizontal", 1),
    Sketcher.Constraint("Vertical", 2),
    Sketcher.Constraint("Horizontal", 3),
    Sketcher.Constraint("DistanceX", 1, 1, 1, 2, 27.0),
    Sketcher.Constraint("DistanceY", 0, 2, 0, 1, 4.0),
    Sketcher.Constraint("DistanceX", 0, 2, -1, 1, 13.5),
    Sketcher.Constraint("DistanceY", 0, 2, -1, 1, 54.80342),
])
pocket12 = doc.addObject("PartDesign::Pocket", "Pocket011")
body.addObject(pocket12)
pocket12.Profile = sketch21
pocket12.Length = 40

# Sketch on XY plane
sketch22 = doc.addObject("Sketcher::SketchObject", "Sketch021")
body.addObject(sketch22)
sketch22.AttachmentSupport = (doc.XY_Plane, [""])
sketch22.MapMode = "FlatFace"
sketch22.AttachmentOffset = App.Placement(V(0, 0, -54.80342), App.Rotation())
sketch22.addGeometry(Part.Circle(V(10.5, -35.5, 0), V(0, 0, 1), 1.25), False)  # 0
sketch22.addGeometry(Part.Circle(V(-10.5, -35.5, 0), V(0, 0, 1), 1.25), False)  # 1
sketch22.addGeometry(Part.Circle(V(-10.5, -23, 0), V(0, 0, 1), 1.25), False)  # 2
sketch22.addGeometry(Part.Circle(V(10.5, -23, 0), V(0, 0, 1), 1.25), False)  # 3
add_polygon(sketch22, [(-4.5, -31), (-4.5, -40), (4.5, -40), (4.5, -31)])  # lines 4-7
sketch22.addConstraint([
    Sketcher.Constraint("Vertical", 4),
    Sketcher.Constraint("Horizontal", 5),
    Sketcher.Constraint("Vertical", 6),
    Sketcher.Constraint("Horizontal", 7),
    Sketcher.Constraint("Equal", 0, 1),
    Sketcher.Constraint("Equal", 1, 2),
    Sketcher.Constraint("Equal", 2, 3),
    Sketcher.Constraint("Symmetric", 0, 3, 1, 3, -2),
    Sketcher.Constraint("Symmetric", 2, 3, 3, 3, -2),
    Sketcher.Constraint("Vertical", 1, 3, 2, 3),
    Sketcher.Constraint("Equal", 7, 4),
    Sketcher.Constraint("Diameter", 0, 2.5),
    Sketcher.Constraint("DistanceX", 5, 1, 5, 2, 9.0),
    Sketcher.Constraint("DistanceY", 2, 3, -1, 1, 23.0),
    Sketcher.Constraint("DistanceY", 4, 2, -1, 1, 40.0),
    Sketcher.Constraint("DistanceX", 1, 3, 0, 3, 21.0),
    Sketcher.Constraint("DistanceX", 1, 3, 4, 2, 6.0),
    Sketcher.Constraint("DistanceY", 0, 3, -1, 1, 35.5),
])
pocket13 = doc.addObject("PartDesign::Pocket", "Pocket012")
body.addObject(pocket13)
pocket13.Profile = sketch22
pocket13.Type = "ThroughAll"

doc.recompute()
